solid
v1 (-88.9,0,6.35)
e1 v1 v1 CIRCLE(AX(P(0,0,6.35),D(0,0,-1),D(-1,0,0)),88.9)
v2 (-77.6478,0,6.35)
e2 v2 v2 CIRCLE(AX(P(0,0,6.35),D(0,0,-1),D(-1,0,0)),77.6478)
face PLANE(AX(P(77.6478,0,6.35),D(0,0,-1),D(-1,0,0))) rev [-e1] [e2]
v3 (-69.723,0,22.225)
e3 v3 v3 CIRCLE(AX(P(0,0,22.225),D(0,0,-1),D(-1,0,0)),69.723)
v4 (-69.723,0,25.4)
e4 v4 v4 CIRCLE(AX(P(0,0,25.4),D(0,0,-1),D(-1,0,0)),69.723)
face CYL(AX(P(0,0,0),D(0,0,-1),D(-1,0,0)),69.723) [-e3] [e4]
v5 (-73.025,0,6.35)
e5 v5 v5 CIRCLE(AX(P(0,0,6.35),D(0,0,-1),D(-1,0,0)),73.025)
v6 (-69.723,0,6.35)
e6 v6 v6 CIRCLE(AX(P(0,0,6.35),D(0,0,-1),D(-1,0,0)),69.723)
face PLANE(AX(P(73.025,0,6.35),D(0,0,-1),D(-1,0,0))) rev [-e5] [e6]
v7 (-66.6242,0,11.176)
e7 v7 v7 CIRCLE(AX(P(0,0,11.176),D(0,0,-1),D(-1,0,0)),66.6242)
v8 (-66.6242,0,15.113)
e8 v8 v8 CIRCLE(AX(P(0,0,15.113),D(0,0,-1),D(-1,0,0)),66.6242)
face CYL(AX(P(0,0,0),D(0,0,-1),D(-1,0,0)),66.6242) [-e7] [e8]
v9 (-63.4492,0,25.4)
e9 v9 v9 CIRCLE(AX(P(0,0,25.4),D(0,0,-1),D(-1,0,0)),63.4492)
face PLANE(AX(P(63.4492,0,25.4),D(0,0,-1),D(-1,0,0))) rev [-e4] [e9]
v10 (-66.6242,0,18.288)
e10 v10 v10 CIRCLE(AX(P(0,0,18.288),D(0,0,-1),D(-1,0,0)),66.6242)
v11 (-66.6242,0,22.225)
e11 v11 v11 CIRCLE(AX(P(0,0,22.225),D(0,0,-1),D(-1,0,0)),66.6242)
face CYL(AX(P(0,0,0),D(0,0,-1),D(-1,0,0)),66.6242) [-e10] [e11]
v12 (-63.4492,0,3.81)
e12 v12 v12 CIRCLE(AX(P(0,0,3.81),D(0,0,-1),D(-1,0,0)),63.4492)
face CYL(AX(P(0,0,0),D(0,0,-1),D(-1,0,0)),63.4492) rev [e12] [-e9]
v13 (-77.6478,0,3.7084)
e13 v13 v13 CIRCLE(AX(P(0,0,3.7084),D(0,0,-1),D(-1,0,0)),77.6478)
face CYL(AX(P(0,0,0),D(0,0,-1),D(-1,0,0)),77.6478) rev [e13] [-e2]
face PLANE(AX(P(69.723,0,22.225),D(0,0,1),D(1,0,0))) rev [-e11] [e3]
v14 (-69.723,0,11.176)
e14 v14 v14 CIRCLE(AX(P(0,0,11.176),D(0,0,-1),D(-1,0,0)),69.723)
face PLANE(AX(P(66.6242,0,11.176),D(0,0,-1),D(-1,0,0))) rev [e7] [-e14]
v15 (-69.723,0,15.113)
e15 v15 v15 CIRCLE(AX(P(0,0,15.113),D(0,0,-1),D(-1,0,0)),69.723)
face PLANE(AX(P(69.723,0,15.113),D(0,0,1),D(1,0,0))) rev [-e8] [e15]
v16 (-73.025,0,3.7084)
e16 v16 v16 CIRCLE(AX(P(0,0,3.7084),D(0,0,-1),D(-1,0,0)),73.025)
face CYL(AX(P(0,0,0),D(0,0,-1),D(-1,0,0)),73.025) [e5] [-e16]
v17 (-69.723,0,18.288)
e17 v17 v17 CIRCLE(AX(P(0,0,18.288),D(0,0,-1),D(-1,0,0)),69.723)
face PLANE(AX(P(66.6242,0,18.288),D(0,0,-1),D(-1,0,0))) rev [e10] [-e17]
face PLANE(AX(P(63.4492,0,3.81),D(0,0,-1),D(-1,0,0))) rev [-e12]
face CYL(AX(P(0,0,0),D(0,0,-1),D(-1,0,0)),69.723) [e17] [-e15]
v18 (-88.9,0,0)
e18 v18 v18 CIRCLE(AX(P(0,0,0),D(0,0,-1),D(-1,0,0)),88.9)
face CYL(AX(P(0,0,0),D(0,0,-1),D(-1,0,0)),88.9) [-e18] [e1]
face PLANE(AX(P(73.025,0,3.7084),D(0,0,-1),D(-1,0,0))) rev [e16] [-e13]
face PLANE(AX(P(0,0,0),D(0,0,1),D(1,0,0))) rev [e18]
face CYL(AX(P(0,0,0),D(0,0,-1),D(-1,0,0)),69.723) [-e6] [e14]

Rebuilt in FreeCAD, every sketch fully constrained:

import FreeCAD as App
import Part
import Sketcher
from FreeCAD import Vector
Q = App.Units.Quantity


def add_polygon(sketch, points):
    """Adds a closed chain of lines whose ends are joined by coincident constraints."""
    first, n = sketch.GeometryCount, len(points)
    for a, b in zip(points, points[1:] + points[:1]):
        sketch.addGeometry(Part.LineSegment(App.Vector(*a, 0), App.Vector(*b, 0)), False)
    for i in range(n):
        sketch.addConstraint(Sketcher.Constraint("Coincident", first + i, 2, first + (i + 1) % n, 1))

doc = App.newDocument("Part")
body = doc.addObject("PartDesign::Body", "Body")

# Sketch on XZ plane
sketch1 = doc.addObject("Sketcher::SketchObject", "Sketch")
body.addObject(sketch1)
sketch1.AttachmentSupport = (doc.XZ_Plane, [""])
sketch1.MapMode = "FlatFace"
add_polygon(sketch1, [(88.9, 0), (0, 0), (0, 3.8), (63.4, 3.8), (63.4, 25.4), (69.7, 25.4), (69.7, 22.2), (66.6, 22.2), (66.6, 18.3), (69.7, 18.3), (69.7, 15.1), (66.6, 15.1), (66.6, 11.2), (69.7, 11.2), (69.7, 6.3), (73, 6.3), (73, 3.7), (77.6, 3.7), (77.6, 6.3), (88.9, 6.3)])  # lines 0-19
sketch1.addConstraint([
    Sketcher.Constraint("Horizontal", 0),
    Sketcher.Constraint("Vertical", 1),
    Sketcher.Constraint("Horizontal", 2),
    Sketcher.Constraint("Vertical", 3),
    Sketcher.Constraint("Horizontal", 4),
    Sketcher.Constraint("Vertical", 5),
    Sketcher.Constraint("Horizontal", 6),
    Sketcher.Constraint("Vertical", 7),
    Sketcher.Constraint("Horizontal", 8),
    Sketcher.Constraint("Vertical", 9),
    Sketcher.Constraint("Horizontal", 10),
    Sketcher.Constraint("Vertical", 11),
    Sketcher.Constraint("Horizontal", 12),
    Sketcher.Constraint("Vertical", 13),
    Sketcher.Constraint("Horizontal", 14),
    Sketcher.Constraint("Vertical", 15),
    Sketcher.Constraint("Horizontal", 16),
    Sketcher.Constraint("Vertical", 17),
    Sketcher.Constraint("Horizontal", 18),
    Sketcher.Constraint("Vertical", 19),
    Sketcher.Constraint("Coincident", 0, 2, -1, 1),
    Sketcher.Constraint("Horizontal", 14, 2, 17, 2),
    Sketcher.Constraint("Vertical", 5, 2, 8, 2),
    Sketcher.Constraint("Vertical", 7, 2, 10, 2),
    Sketcher.Constraint("Vertical", 9, 2, 12, 2),
    Sketcher.Constraint("Equal", 5, 9),
    Sketcher.Constraint("Equal", 7, 11),
    Sketcher.Constraint("DistanceX", 0, 2, 0, 1, Q("3.5 in")),
    Sketcher.Constraint("DistanceY", -1, 1, 3, 2, Q("1 in")),
    Sketcher.Constraint("DistanceX", 14, 1, 14, 2, Q("0.13 in")),
    Sketcher.Constraint("DistanceY", 1, 1, 1, 2, Q("0.15 in")),
    Sketcher.Constraint("DistanceY", 13, 2, 13, 1, Q("0.19 in")),
    Sketcher.Constraint("DistanceY", 19, 2, 19, 1, Q("0.25 in")),
    Sketcher.Constraint("DistanceX", 2, 1, 2, 2, Q("2.498 in")),
    Sketcher.Constraint("DistanceX", 4, 1, 4, 2, Q("0.247 in")),
    Sketcher.Constraint("DistanceX", 6, 2, 6, 1, Q("0.122 in")),
    Sketcher.Constraint("DistanceX", 16, 1, 16, 2, Q("0.182 in")),
    Sketcher.Constraint("DistanceY", 5, 2, 5, 1, Q("0.125 in")),
    Sketcher.Constraint("DistanceY", 15, 2, 15, 1, Q("0.104 in")),
])
revolution = doc.addObject("PartDesign::Revolution", "Revolution")
body.addObject(revolution)
revolution.Profile = sketch1
revolution.ReferenceAxis = (sketch1, ["V_Axis"])
revolution.Angle = 360

doc.recompute()
